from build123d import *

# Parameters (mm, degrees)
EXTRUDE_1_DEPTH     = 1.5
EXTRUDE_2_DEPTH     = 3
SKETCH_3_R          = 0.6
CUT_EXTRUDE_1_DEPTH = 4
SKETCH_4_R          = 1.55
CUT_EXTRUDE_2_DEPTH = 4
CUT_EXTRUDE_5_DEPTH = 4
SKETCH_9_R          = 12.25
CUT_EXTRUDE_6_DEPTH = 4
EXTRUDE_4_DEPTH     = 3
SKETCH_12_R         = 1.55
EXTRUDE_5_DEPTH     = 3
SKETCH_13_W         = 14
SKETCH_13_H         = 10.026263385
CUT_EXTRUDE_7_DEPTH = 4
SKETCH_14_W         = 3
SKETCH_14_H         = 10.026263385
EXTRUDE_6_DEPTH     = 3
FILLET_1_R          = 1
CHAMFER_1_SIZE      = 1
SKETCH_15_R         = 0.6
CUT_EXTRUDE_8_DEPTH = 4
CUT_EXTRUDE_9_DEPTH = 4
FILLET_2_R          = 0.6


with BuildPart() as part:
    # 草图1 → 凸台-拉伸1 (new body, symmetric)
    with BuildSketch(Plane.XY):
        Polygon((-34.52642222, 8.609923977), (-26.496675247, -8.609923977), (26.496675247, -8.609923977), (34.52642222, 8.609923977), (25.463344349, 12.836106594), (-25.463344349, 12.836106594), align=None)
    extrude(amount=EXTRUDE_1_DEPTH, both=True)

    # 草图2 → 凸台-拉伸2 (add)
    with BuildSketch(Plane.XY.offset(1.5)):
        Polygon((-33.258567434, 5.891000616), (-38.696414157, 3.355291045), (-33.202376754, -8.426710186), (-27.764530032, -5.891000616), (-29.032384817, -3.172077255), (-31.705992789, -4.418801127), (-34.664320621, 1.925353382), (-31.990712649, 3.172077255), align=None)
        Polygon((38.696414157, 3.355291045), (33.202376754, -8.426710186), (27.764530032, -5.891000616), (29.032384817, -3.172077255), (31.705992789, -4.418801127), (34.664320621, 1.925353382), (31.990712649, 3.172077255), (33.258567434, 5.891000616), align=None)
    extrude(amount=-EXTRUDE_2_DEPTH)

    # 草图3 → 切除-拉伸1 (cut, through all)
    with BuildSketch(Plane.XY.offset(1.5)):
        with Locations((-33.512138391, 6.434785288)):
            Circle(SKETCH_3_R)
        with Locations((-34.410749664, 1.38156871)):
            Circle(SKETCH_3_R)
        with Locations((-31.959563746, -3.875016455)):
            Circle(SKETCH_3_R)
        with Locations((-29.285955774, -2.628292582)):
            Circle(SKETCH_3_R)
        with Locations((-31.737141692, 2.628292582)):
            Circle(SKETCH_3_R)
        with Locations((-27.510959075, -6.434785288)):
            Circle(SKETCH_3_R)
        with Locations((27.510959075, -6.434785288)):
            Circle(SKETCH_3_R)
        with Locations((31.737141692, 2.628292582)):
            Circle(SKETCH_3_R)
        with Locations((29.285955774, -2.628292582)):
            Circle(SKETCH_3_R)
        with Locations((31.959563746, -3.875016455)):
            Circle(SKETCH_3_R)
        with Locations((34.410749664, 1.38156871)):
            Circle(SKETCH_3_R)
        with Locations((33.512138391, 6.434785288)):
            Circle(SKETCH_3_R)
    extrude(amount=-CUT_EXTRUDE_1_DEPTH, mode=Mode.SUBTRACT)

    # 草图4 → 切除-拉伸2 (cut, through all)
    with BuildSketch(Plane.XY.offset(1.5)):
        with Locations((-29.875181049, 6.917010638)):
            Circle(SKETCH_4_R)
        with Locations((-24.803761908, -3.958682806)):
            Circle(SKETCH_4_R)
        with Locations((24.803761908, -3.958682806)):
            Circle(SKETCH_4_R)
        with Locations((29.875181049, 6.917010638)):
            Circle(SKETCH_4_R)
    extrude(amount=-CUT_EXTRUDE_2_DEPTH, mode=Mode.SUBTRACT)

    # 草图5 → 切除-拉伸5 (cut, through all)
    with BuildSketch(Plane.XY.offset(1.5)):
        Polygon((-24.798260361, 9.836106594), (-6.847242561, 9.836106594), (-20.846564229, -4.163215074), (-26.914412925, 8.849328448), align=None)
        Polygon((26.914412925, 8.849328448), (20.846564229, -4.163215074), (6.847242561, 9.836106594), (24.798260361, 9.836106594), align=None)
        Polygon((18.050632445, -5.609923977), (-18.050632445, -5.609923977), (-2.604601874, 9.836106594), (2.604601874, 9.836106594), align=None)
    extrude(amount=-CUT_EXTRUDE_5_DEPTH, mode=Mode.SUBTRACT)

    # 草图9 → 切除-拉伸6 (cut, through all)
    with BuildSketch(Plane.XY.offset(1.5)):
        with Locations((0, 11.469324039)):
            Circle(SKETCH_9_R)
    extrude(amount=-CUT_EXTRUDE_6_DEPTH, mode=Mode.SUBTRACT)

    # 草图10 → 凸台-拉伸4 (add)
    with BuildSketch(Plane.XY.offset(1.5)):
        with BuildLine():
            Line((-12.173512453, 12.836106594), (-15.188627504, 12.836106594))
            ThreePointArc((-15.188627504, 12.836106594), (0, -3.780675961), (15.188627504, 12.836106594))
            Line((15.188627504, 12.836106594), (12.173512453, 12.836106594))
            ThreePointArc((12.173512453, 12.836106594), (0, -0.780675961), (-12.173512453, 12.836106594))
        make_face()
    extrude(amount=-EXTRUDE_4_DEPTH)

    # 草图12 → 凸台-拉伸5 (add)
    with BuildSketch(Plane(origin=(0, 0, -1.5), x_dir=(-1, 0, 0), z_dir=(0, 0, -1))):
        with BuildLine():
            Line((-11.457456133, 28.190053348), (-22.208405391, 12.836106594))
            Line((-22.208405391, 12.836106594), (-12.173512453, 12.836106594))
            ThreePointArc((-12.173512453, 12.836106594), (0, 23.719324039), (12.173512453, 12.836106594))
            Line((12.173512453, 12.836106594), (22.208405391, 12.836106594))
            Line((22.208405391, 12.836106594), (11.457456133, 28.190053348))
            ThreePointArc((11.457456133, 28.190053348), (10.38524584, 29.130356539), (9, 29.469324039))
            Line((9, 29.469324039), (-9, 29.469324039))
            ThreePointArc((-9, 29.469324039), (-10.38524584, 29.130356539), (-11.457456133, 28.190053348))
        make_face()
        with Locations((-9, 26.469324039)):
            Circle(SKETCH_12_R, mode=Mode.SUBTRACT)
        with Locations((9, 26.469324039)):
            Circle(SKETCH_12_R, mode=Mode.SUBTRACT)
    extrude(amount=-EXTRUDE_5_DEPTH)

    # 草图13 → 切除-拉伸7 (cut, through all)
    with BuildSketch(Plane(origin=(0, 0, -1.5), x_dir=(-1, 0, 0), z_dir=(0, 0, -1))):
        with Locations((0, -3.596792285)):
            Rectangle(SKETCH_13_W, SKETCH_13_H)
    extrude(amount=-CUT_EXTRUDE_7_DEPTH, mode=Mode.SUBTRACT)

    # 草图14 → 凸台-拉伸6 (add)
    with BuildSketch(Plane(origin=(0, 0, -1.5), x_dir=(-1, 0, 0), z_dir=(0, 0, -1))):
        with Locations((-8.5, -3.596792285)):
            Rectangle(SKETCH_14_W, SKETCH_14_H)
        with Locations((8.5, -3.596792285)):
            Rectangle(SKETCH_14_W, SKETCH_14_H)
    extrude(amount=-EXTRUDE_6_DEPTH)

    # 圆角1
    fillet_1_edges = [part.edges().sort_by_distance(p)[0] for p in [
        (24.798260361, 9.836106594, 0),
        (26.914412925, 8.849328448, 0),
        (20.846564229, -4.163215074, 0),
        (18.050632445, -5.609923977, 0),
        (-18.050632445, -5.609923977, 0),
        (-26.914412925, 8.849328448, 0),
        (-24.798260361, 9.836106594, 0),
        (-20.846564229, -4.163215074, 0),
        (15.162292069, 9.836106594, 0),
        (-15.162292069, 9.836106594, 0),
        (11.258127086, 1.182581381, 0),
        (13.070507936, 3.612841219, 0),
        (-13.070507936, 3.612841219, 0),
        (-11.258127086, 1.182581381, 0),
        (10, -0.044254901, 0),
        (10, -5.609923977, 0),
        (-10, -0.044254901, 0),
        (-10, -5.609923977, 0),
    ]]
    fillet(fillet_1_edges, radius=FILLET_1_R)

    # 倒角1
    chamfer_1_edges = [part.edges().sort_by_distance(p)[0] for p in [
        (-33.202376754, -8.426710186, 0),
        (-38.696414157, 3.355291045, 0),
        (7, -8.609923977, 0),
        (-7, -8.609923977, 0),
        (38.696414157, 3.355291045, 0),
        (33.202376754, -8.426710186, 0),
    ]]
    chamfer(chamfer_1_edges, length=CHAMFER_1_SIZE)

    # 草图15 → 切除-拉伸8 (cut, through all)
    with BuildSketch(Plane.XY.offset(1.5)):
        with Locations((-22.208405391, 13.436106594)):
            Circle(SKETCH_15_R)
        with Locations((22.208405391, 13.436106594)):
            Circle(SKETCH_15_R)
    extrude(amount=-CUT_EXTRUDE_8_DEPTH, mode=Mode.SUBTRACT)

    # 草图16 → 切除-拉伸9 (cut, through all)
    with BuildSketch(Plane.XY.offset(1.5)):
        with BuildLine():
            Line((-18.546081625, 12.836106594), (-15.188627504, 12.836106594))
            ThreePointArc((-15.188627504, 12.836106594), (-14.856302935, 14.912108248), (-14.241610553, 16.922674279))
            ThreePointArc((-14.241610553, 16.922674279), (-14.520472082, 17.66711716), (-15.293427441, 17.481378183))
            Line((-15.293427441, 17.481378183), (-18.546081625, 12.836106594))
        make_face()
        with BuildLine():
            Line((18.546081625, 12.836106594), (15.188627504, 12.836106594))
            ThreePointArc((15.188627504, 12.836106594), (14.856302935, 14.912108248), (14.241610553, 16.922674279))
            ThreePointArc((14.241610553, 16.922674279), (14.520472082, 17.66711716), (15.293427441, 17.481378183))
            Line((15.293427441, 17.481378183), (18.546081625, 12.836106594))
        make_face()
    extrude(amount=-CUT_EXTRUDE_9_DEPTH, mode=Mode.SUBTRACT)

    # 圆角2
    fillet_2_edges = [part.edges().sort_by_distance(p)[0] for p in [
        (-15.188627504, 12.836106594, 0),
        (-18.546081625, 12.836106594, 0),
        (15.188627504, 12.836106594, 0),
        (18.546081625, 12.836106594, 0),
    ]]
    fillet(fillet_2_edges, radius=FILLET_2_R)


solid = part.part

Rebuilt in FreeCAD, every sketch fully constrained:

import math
import FreeCAD as App
import Part
import Sketcher
from FreeCAD import Vector
Q = App.Units.Quantity


def edges_at(feature, points):
    """Names of the edges that pass closest to the given points."""
    edges = feature.Shape.Edges
    near = lambda p: min(range(len(edges)), key=lambda i: edges[i].distToShape(Part.Vertex(*p))[0])
    return sorted({f"Edge{near(p) + 1}" for p in points})

doc = App.newDocument("Part")
body = doc.addObject("PartDesign::Body", "Body")

# Sketch on XY plane
sketch1 = body.newObject("Sketcher::SketchObject", "Sketch")
sketch1.AttachmentSupport = (doc.getObject("XY_Plane"), [""])
sketch1.MapMode = "FlatFace"
sketch1.addGeometry([
    Part.LineSegment(Vector(-34.526422, 8.609924, 0), Vector(-26.496675, -8.609924, 0)),  # 0
    Part.LineSegment(Vector(-26.496675, -8.609924, 0), Vector(26.496675, -8.609924, 0)),  # 1
    Part.LineSegment(Vector(26.496675, -8.609924, 0), Vector(34.526422, 8.609924, 0)),  # 2
    Part.LineSegment(Vector(34.526422, 8.609924, 0), Vector(25.463344, 12.836107, 0)),  # 3
    Part.LineSegment(Vector(25.463344, 12.836107, 0), Vector(-25.463344, 12.836107, 0)),  # 4
    Part.LineSegment(Vector(-25.463344, 12.836107, 0), Vector(-34.526422, 8.609924, 0)),  # 5
], False)
sketch1.addConstraint([
    Sketcher.Constraint("Coincident", 0, 2, 1, 1),
    Sketcher.Constraint("Coincident", 1, 2, 2, 1),
    Sketcher.Constraint("Coincident", 2, 2, 3, 1),
    Sketcher.Constraint("Coincident", 3, 2, 4, 1),
    Sketcher.Constraint("Coincident", 4, 2, 5, 1),
    Sketcher.Constraint("Coincident", 5, 2, 0, 1),
    Sketcher.Constraint("Horizontal", 1),
    Sketcher.Constraint("Horizontal", 4),
    Sketcher.Constraint("Symmetric", 2, 2, 5, 2, -2),
    Sketcher.Constraint("Perpendicular", 2, 3),
    Sketcher.Constraint("Perpendicular", 0, 5),
    Sketcher.Constraint("Equal", 0, 2),
    Sketcher.Constraint("Angle", 0, Q("-65 deg")),
    Sketcher.Constraint("Distance", 0, Q("19 mm")),
    Sketcher.Constraint("Distance", 3, Q("10 mm")),
    Sketcher.Constraint("DistanceX", 1, 1, 1, 2, Q("52.99335 mm")),
    Sketcher.Constraint("DistanceY", 0, 2, -1, 1, Q("8.609924 mm")),
])
pad1 = body.newObject("PartDesign::Pad", "Pad")
pad1.Profile = sketch1
pad1.Length = 3
pad1.Midplane = True

# Sketch on XY plane
sketch2 = body.newObject("Sketcher::SketchObject", "Sketch001")
sketch2.AttachmentSupport = (doc.getObject("XY_Plane"), [""])
sketch2.MapMode = "FlatFace"
sketch2.AttachmentOffset = App.Placement(Vector(0, 0, 1.5), App.Rotation())
sketch2.addGeometry([
    Part.LineSegment(Vector(-33.258567, 5.891001, 0), Vector(-38.696414, 3.355291, 0)),  # 0
    Part.LineSegment(Vector(-38.696414, 3.355291, 0), Vector(-33.202377, -8.42671, 0)),  # 1
    Part.LineSegment(Vector(-33.202377, -8.42671, 0), Vector(-27.76453, -5.891001, 0)),  # 2
    Part.LineSegment(Vector(-27.76453, -5.891001, 0), Vector(-29.032385, -3.172077, 0)),  # 3
    Part.LineSegment(Vector(-29.032385, -3.172077, 0), Vector(-31.705993, -4.418801, 0)),  # 4
    Part.LineSegment(Vector(-31.705993, -4.418801, 0), Vector(-34.664321, 1.925353, 0)),  # 5
    Part.LineSegment(Vector(-34.664321, 1.925353, 0), Vector(-31.990713, 3.172077, 0)),  # 6
    Part.LineSegment(Vector(-31.990713, 3.172077, 0), Vector(-33.258567, 5.891001, 0)),  # 7
    Part.LineSegment(Vector(33.202377, -8.42671, 0), Vector(38.696414, 3.355291, 0)),  # 8
    Part.LineSegment(Vector(38.696414, 3.355291, 0), Vector(33.258567, 5.891001, 0)),  # 9
    Part.LineSegment(Vector(33.258567, 5.891001, 0), Vector(31.990713, 3.172077, 0)),  # 10
    Part.LineSegment(Vector(31.990713, 3.172077, 0), Vector(34.664321, 1.925353, 0)),  # 11
    Part.LineSegment(Vector(34.664321, 1.925353, 0), Vector(31.705993, -4.418801, 0)),  # 12
    Part.LineSegment(Vector(31.705993, -4.418801, 0), Vector(29.032385, -3.172077, 0)),  # 13
    Part.LineSegment(Vector(29.032385, -3.172077, 0), Vector(27.76453, -5.891001, 0)),  # 14
    Part.LineSegment(Vector(27.76453, -5.891001, 0), Vector(33.202377, -8.42671, 0)),  # 15
], False)
sketch2.addConstraint([
    Sketcher.Constraint("Coincident", 0, 2, 1, 1),
    Sketcher.Constraint("Coincident", 1, 2, 2, 1),
    Sketcher.Constraint("Coincident", 2, 2, 3, 1),
    Sketcher.Constraint("Coincident", 3, 2, 4, 1),
    Sketcher.Constraint("Coincident", 4, 2, 5, 1),
    Sketcher.Constraint("Coincident", 5, 2, 6, 1),
    Sketcher.Constraint("Coincident", 6, 2, 7, 1),
    Sketcher.Constraint("Coincident", 7, 2, 0, 1),
    Sketcher.Constraint("Coincident", 8, 2, 9, 1),
    Sketcher.Constraint("Coincident", 9, 2, 10, 1),
    Sketcher.Constraint("Coincident", 10, 2, 11, 1),
    Sketcher.Constraint("Coincident", 11, 2, 12, 1),
    Sketcher.Constraint("Coincident", 12, 2, 13, 1),
    Sketcher.Constraint("Coincident", 13, 2, 14, 1),
    Sketcher.Constraint("Coincident", 14, 2, 15, 1),
    Sketcher.Constraint("Coincident", 15, 2, 8, 1),
    Sketcher.Constraint("Symmetric", 0, 2, 8, 2, -2),
    Sketcher.Constraint("Symmetric", 7, 2, 9, 2, -2),
    Sketcher.Constraint("Symmetric", 6, 2, 10, 2, -2),
    Sketcher.Constraint("Symmetric", 5, 2, 11, 2, -2),
    Sketcher.Constraint("Symmetric", 4, 2, 12, 2, -2),
    Sketcher.Constraint("Symmetric", 3, 2, 13, 2, -2),
    Sketcher.Constraint("Symmetric", 2, 2, 14, 2, -2),
    Sketcher.Constraint("Symmetric", 1, 2, 15, 2, -2),
    Sketcher.Constraint("Perpendicular", 0, 1),
    Sketcher.Constraint("Perpendicular", 1, 2),
    Sketcher.Constraint("Perpendicular", 2, 3),
    Sketcher.Constraint("Perpendicular", 3, 4),
    Sketcher.Constraint("Perpendicular", 4, 5),
    Sketcher.Constraint("Perpendicular", 5, 6),
    Sketcher.Constraint("Perpendicular", 6, 7),
    Sketcher.Constraint("Equal", 0, 2),
    Sketcher.Constraint("Equal", 3, 7),
    Sketcher.Constraint("Angle", 0, Q("-155 deg")),
    Sketcher.Constraint("Distance", 0, Q("6 mm")),
    Sketcher.Constraint("Distance", 1, Q("13 mm")),
    Sketcher.Constraint("Distance", 3, Q("3 mm")),
    Sketcher.Constraint("Distance", 4, Q("2.95 mm")),
    Sketcher.Constraint("DistanceY", 2, 2, -1, 1, Q("5.891001 mm")),
    Sketcher.Constraint("DistanceX", 3, 2, 8, 2, Q("67.728799 mm")),
])
pad2 = body.newObject("PartDesign::Pad", "Pad001")
pad2.Profile = sketch2
pad2.Length = 3
pad2.Reversed = True

# Sketch on XY plane
sketch3 = body.newObject("Sketcher::SketchObject", "Sketch002")
sketch3.AttachmentSupport = (doc.getObject("XY_Plane"), [""])
sketch3.MapMode = "FlatFace"
sketch3.AttachmentOffset = App.Placement(Vector(0, 0, 1.5), App.Rotation())
sketch3.addGeometry([
    Part.Circle(Vector(-33.512138, 6.434785, 0), Vector(0, 0, 1), 0.6),  # 0
    Part.Circle(Vector(-34.41075, 1.381569, 0), Vector(0, 0, 1), 0.6),  # 1
    Part.Circle(Vector(-31.959564, -3.875016, 0), Vector(0, 0, 1), 0.6),  # 2
    Part.Circle(Vector(-29.285956, -2.628293, 0), Vector(0, 0, 1), 0.6),  # 3
    Part.Circle(Vector(-31.737142, 2.628293, 0), Vector(0, 0, 1), 0.6),  # 4
    Part.Circle(Vector(-27.510959, -6.434785, 0), Vector(0, 0, 1), 0.6),  # 5
    Part.Circle(Vector(27.510959, -6.434785, 0), Vector(0, 0, 1), 0.6),  # 6
    Part.Circle(Vector(31.737142, 2.628293, 0), Vector(0, 0, 1), 0.6),  # 7
    Part.Circle(Vector(29.285956, -2.628293, 0), Vector(0, 0, 1), 0.6),  # 8
    Part.Circle(Vector(31.959564, -3.875016, 0), Vector(0, 0, 1), 0.6),  # 9
    Part.Circle(Vector(34.41075, 1.381569, 0), Vector(0, 0, 1), 0.6),  # 10
    Part.Circle(Vector(33.512138, 6.434785, 0), Vector(0, 0, 1), 0.6),  # 11
], False)
sketch3.addConstraint([
    Sketcher.Constraint("Equal", 0, 1),
    Sketcher.Constraint("Equal", 1, 2),
    Sketcher.Constraint("Equal", 2, 3),
    Sketcher.Constraint("Equal", 3, 4),
    Sketcher.Constraint("Equal", 4, 5),
    Sketcher.Constraint("Equal", 5, 6),
    Sketcher.Constraint("Equal", 6, 7),
    Sketcher.Constraint("Equal", 7, 8),
    Sketcher.Constraint("Equal", 8, 9),
    Sketcher.Constraint("Equal", 9, 10),
    Sketcher.Constraint("Equal", 10, 11),
    Sketcher.Constraint("Symmetric", 5, 3, 6, 3, -2),
    Sketcher.Constraint("Symmetric", 4, 3, 7, 3, -2),
    Sketcher.Constraint("Symmetric", 3, 3, 8, 3, -2),
    Sketcher.Constraint("Symmetric", 2, 3, 9, 3, -2),
    Sketcher.Constraint("Symmetric", 1, 3, 10, 3, -2),
    Sketcher.Constraint("Symmetric", 0, 3, 11, 3, -2),
    Sketcher.Constraint("Diameter", 0, Q("1.2 mm")),
    Sketcher.Constraint("DistanceY", 2, 3, 0, 3, Q("10.309802 mm")),
    Sketcher.Constraint("DistanceX", 4, 3, 6, 3, Q("59.248101 mm")),
    Sketcher.Constraint("DistanceX", 0, 3, -1, 1, Q("33.512138 mm")),
    Sketcher.Constraint("DistanceX", 1, 3, -1, 1, Q("34.41075 mm")),
    Sketcher.Constraint("DistanceY", -1, 1, 1, 3, Q("1.381569 mm")),
    Sketcher.Constraint("DistanceX", 4, 3, -1, 1, Q("31.737142 mm")),
    Sketcher.Constraint("DistanceY", 3, 3, 1, 3, Q("4.009861 mm")),
    Sketcher.Constraint("DistanceY", 2, 3, 4, 3, Q("6.503309 mm")),
    Sketcher.Constraint("DistanceY", 5, 3, 2, 3, Q("2.559769 mm")),
    Sketcher.Constraint("DistanceX", 3, 3, 8, 3, Q("58.571912 mm")),
    Sketcher.Constraint("DistanceX", 3, 3, 9, 3, Q("61.24552 mm")),
    Sketcher.Constraint("DistanceY", -1, 1, 0, 3, Q("6.434785 mm")),
])
pocket1 = body.newObject("PartDesign::Pocket", "Pocket")
pocket1.Profile = sketch3
pocket1.Type = "ThroughAll"

# Sketch on XY plane
sketch4 = body.newObject("Sketcher::SketchObject", "Sketch003")
sketch4.AttachmentSupport = (doc.getObject("XY_Plane"), [""])
sketch4.MapMode = "FlatFace"
sketch4.AttachmentOffset = App.Placement(Vector(0, 0, 1.5), App.Rotation())
sketch4.addGeometry([
    Part.Circle(Vector(-29.875181, 6.917011, 0), Vector(0, 0, 1), 1.55),
    Part.Circle(Vector(-24.803762, -3.958683, 0), Vector(0, 0, 1), 1.55),
    Part.Circle(Vector(24.803762, -3.958683, 0), Vector(0, 0, 1), 1.55),
    Part.Circle(Vector(29.875181, 6.917011, 0), Vector(0, 0, 1), 1.55),
], False)
sketch4.addConstraint([
    Sketcher.Constraint("Equal", 0, 1),
    Sketcher.Constraint("Equal", 1, 2),
    Sketcher.Constraint("Equal", 2, 3),
    Sketcher.Constraint("Symmetric", 1, 3, 2, 3, -2),
    Sketcher.Constraint("Symmetric", 0, 3, 3, 3, -2),
    Sketcher.Constraint("Diameter", 0, Q("3.1 mm")),
    Sketcher.Constraint("DistanceX", 0, 3, -1, 1, Q("29.875181 mm")),
    Sketcher.Constraint("DistanceY", -1, 1, 0, 3, Q("6.917011 mm")),
    Sketcher.Constraint("DistanceX", 1, 3, -1, 1, Q("24.803762 mm")),
    Sketcher.Constraint("DistanceY", 1, 3, -1, 1, Q("3.958683 mm")),
])
pocket2 = body.newObject("PartDesign::Pocket", "Pocket001")
pocket2.Profile = sketch4
pocket2.Type = "ThroughAll"

# Sketch on XY plane
sketch5 = body.newObject("Sketcher::SketchObject", "Sketch004")
sketch5.AttachmentSupport = (doc.getObject("XY_Plane"), [""])
sketch5.MapMode = "FlatFace"
sketch5.AttachmentOffset = App.Placement(Vector(0, 0, 1.5), App.Rotation())
sketch5.addGeometry([
    Part.LineSegment(Vector(-6.847243, 9.836107, 0), Vector(-24.79826, 9.836107, 0)),  # 0
    Part.LineSegment(Vector(-24.79826, 9.836107, 0), Vector(-26.914413, 8.849328, 0)),  # 1
    Part.LineSegment(Vector(-26.914413, 8.849328, 0), Vector(-20.846564, -4.163215, 0)),  # 2
    Part.LineSegment(Vector(-20.846564, -4.163215, 0), Vector(-6.847243, 9.836107, 0)),  # 3
    Part.LineSegment(Vector(20.846564, -4.163215, 0), Vector(26.914413, 8.849328, 0)),  # 4
    Part.LineSegment(Vector(26.914413, 8.849328, 0), Vector(24.79826, 9.836107, 0)),  # 5
    Part.LineSegment(Vector(24.79826, 9.836107, 0), Vector(6.847243, 9.836107, 0)),  # 6
    Part.LineSegment(Vector(6.847243, 9.836107, 0), Vector(20.846564, -4.163215, 0)),  # 7
    Part.LineSegment(Vector(-18.050632, -5.609924, 0), Vector(18.050632, -5.609924, 0)),  # 8
    Part.LineSegment(Vector(18.050632, -5.609924, 0), Vector(2.604602, 9.836107, 0)),  # 9
    Part.LineSegment(Vector(2.604602, 9.836107, 0), Vector(-2.604602, 9.836107, 0)),  # 10
    Part.LineSegment(Vector(-2.604602, 9.836107, 0), Vector(-18.050632, -5.609924, 0)),  # 11
], False)
sketch5.addConstraint([
    Sketcher.Constraint("Coincident", 0, 2, 1, 1),
    Sketcher.Constraint("Coincident", 1, 2, 2, 1),
    Sketcher.Constraint("Coincident", 2, 2, 3, 1),
    Sketcher.Constraint("Coincident", 3, 2, 0, 1),
    Sketcher.Constraint("Coincident", 4, 2, 5, 1),
    Sketcher.Constraint("Coincident", 5, 2, 6, 1),
    Sketcher.Constraint("Coincident", 6, 2, 7, 1),
    Sketcher.Constraint("Coincident", 7, 2, 4, 1),
    Sketcher.Constraint("Coincident", 8, 2, 9, 1),
    Sketcher.Constraint("Coincident", 9, 2, 10, 1),
    Sketcher.Constraint("Coincident", 10, 2, 11, 1),
    Sketcher.Constraint("Coincident", 11, 2, 8, 1),
    Sketcher.Constraint("Horizontal", 0),
    Sketcher.Constraint("Horizontal", 6),
    Sketcher.Constraint("Horizontal", 8),
    Sketcher.Constraint("Horizontal", 10),
    Sketcher.Constraint("Symmetric", 1, 2, 4, 2, -2),
    Sketcher.Constraint("Symmetric", 0, 2, 5, 2, -2),
    Sketcher.Constraint("Symmetric", 2, 2, 7, 2, -2),
    Sketcher.Constraint("Perpendicular", 1, 2),
    Sketcher.Constraint("Perpendicular", 3, 7),
    Sketcher.Constraint("Parallel", 7, 9),
    Sketcher.Constraint("Perpendicular", 9, 11),
    Sketcher.Constraint("Horizontal", 6, 2, 9, 2),
    Sketcher.Constraint("Equal", 0, 6),
    Sketcher.Constraint("Angle", 1, Q("-155 deg")),
    Sketcher.Constraint("DistanceX", -1, 1, 9, 2, Q("2.604602 mm")),
    Sketcher.Constraint("DistanceX", 10, 2, -1, 1, Q("2.604602 mm")),
    Sketcher.Constraint("Distance", 3, Q("19.798031 mm")),
    Sketcher.Constraint("DistanceX", 0, 2, 0, 1, Q("17.951018 mm")),
    Sketcher.Constraint("DistanceX", 8, 1, 8, 2, Q("36.101265 mm")),
    Sketcher.Constraint("DistanceX", 0, 2, -1, 1, Q("24.79826 mm")),
    Sketcher.Constraint("DistanceY", -1, 1, 1, 2, Q("8.849328 mm")),
])
pocket3 = body.newObject("PartDesign::Pocket", "Pocket002")
pocket3.Profile = sketch5
pocket3.Type = "ThroughAll"

# Sketch on XY plane
sketch6 = body.newObject("Sketcher::SketchObject", "Sketch005")
sketch6.AttachmentSupport = (doc.getObject("XY_Plane"), [""])
sketch6.MapMode = "FlatFace"
sketch6.AttachmentOffset = App.Placement(Vector(0, 0, 1.5), App.Rotation())
sketch6.addGeometry(Part.Circle(Vector(0, 11.469324, 0), Vector(0, 0, 1), 12.25), False)
sketch6.addConstraint([
    Sketcher.Constraint("PointOnObject", 0, 3, -2),
    Sketcher.Constraint("Diameter", 0, Q("24.5 mm")),
    Sketcher.Constraint("DistanceY", -1, 1, 0, 3, Q("11.469324 mm")),
])
pocket4 = body.newObject("PartDesign::Pocket", "Pocket003")
pocket4.Profile = sketch6
pocket4.Type = "ThroughAll"

# Sketch on XY plane
sketch7 = body.newObject("Sketcher::SketchObject", "Sketch006")
sketch7.AttachmentSupport = (doc.getObject("XY_Plane"), [""])
sketch7.MapMode = "FlatFace"
sketch7.AttachmentOffset = App.Placement(Vector(0, 0, 1.5), App.Rotation())
sketch7.addGeometry([
    Part.LineSegment(Vector(-12.173512, 12.836107, 0), Vector(-15.188628, 12.836107, 0)),
    Part.ArcOfCircle(Part.Circle(Vector(0, 11.469324, 0), Vector(0, 0, 1), 15.25), math.radians(174.857961), math.radians(365.142039)),
    Part.LineSegment(Vector(15.188628, 12.836107, 0), Vector(12.173512, 12.836107, 0)),
    Part.ArcOfCircle(Part.Circle(Vector(0, 11.469324, 0), Vector(0, 0, 1), 12.25), math.radians(173.593937), math.radians(366.406063)),
], False)
sketch7.addConstraint([
    Sketcher.Constraint("Coincident", 0, 2, 1, 1),
    Sketcher.Constraint("Coincident", 1, 2, 2, 1),
    Sketcher.Constraint("Coincident", 2, 2, 3, 2),
    Sketcher.Constraint("Coincident", 3, 1, 0, 1),
    Sketcher.Constraint("Horizontal", 0),
    Sketcher.Constraint("Horizontal", 2),
    Sketcher.Constraint("Coincident", 3, 3, 1, 3),
    Sketcher.Constraint("Symmetric", 0, 2, 1, 2, -2),
    Sketcher.Constraint("Radius", 1, Q("15.25 mm")),
    Sketcher.Constraint("Radius", 3, Q("12.25 mm")),
    Sketcher.Constraint("DistanceX", 0, 2, 0, 1, Q("3.015115 mm")),
    Sketcher.Constraint("DistanceY", -1, 1, 1, 3, Q("11.469324 mm")),
])
pad3 = body.newObject("PartDesign::Pad", "Pad002")
pad3.Profile = sketch7
pad3.Length = 3
pad3.Reversed = True

# Sketch on XY plane
sketch8 = body.newObject("Sketcher::SketchObject", "Sketch007")
sketch8.AttachmentSupport = (doc.getObject("XY_Plane"), [""])
sketch8.MapMode = "FlatFace"
sketch8.AttachmentOffset = App.Placement(Vector(0, 0, -1.5), App.Rotation())
sketch8.addGeometry([
    Part.LineSegment(Vector(11.457456, 28.190053, 0), Vector(22.208405, 12.836107, 0)),  # 0
    Part.LineSegment(Vector(22.208405, 12.836107, 0), Vector(12.173512, 12.836107, 0)),  # 1
    Part.ArcOfCircle(Part.Circle(Vector(0, 11.469324, 0), Vector(0, 0, 1), 12.25), math.radians(6.406063), math.radians(173.593937)),  # 2
    Part.LineSegment(Vector(-12.173512, 12.836107, 0), Vector(-22.208405, 12.836107, 0)),  # 3
    Part.LineSegment(Vector(-22.208405, 12.836107, 0), Vector(-11.457456, 28.190053, 0)),  # 4
    Part.ArcOfCircle(Part.Circle(Vector(-9, 26.469324, 0), Vector(0, 0, 1), 3), math.radians(90), math.radians(145)),  # 5
    Part.LineSegment(Vector(-9, 29.469324, 0), Vector(9, 29.469324, 0)),  # 6
    Part.ArcOfCircle(Part.Circle(Vector(9, 26.469324, 0), Vector(0, 0, 1), 3), math.radians(35), math.radians(90)),  # 7
    Part.Circle(Vector(9, 26.469324, 0), Vector(0, 0, 1), 1.55),  # 8
    Part.Circle(Vector(-9, 26.469324, 0), Vector(0, 0, 1), 1.55),  # 9
], False)
sketch8.addConstraint([
    Sketcher.Constraint("Coincident", 0, 2, 1, 1),
    Sketcher.Constraint("Coincident", 1, 2, 2, 1),
    Sketcher.Constraint("Coincident", 2, 2, 3, 1),
    Sketcher.Constraint("Coincident", 3, 2, 4, 1),
    Sketcher.Constraint("Tangent", 4, 2, 5, 2),
    Sketcher.Constraint("Tangent", 5, 1, 6, 1),
    Sketcher.Constraint("Tangent", 6, 2, 7, 2),
    Sketcher.Constraint("Tangent", 7, 1, 0, 1),
    Sketcher.Constraint("Horizontal", 1),
    Sketcher.Constraint("Horizontal", 3),
    Sketcher.Constraint("Horizontal", 6),
    Sketcher.Constraint("Coincident", 8, 3, 7, 3),
    Sketcher.Constraint("Coincident", 9, 3, 5, 3),
    Sketcher.Constraint("Equal", 5, 7),
    Sketcher.Constraint("Equal", 8, 9),
    Sketcher.Constraint("Symmetric", 1, 2, 2, 2, -2),
    Sketcher.Constraint("Symmetric", 4, 2, 7, 1, -2),
    Sketcher.Constraint("Radius", 5, Q("3 mm")),
    Sketcher.Constraint("Diameter", 8, Q("3.1 mm")),
    Sketcher.Constraint("DistanceX", 6, 1, 6, 2, Q("18 mm")),
    Sketcher.Constraint("Angle", 0, Q("-55 deg")),
    Sketcher.Constraint("Radius", 2, Q("12.25 mm")),
    Sketcher.Constraint("DistanceY", 2, 3, 5, 3, Q("15 mm")),
    Sketcher.Constraint("Distance", 0, Q("18.743708 mm")),
    Sketcher.Constraint("DistanceY", -1, 1, 2, 3, Q("11.469324 mm")),
])
pad4 = body.newObject("PartDesign::Pad", "Pad003")
pad4.Profile = sketch8
pad4.Length = 3

# Sketch on XY plane
sketch9 = body.newObject("Sketcher::SketchObject", "Sketch008")
sketch9.AttachmentSupport = (doc.getObject("XY_Plane"), [""])
sketch9.MapMode = "FlatFace"
sketch9.AttachmentOffset = App.Placement(Vector(0, 0, -1.5), App.Rotation())
sketch9.addGeometry([
    Part.LineSegment(Vector(7, 1.416339, 0), Vector(7, -8.609924, 0)),
    Part.LineSegment(Vector(7, -8.609924, 0), Vector(-7, -8.609924, 0)),
    Part.LineSegment(Vector(-7, -8.609924, 0), Vector(-7, 1.416339, 0)),
    Part.LineSegment(Vector(-7, 1.416339, 0), Vector(7, 1.416339, 0)),
], False)
sketch9.addConstraint([
    Sketcher.Constraint("Coincident", 0, 2, 1, 1),
    Sketcher.Constraint("Coincident", 1, 2, 2, 1),
    Sketcher.Constraint("Coincident", 2, 2, 3, 1),
    Sketcher.Constraint("Coincident", 3, 2, 0, 1),
    Sketcher.Constraint("Vertical", 0),
    Sketcher.Constraint("Horizontal", 1),
    Sketcher.Constraint("Vertical", 2),
    Sketcher.Constraint("Horizontal", 3),
    Sketcher.Constraint("DistanceX", 1, 2, 1, 1, Q("14 mm")),
    Sketcher.Constraint("DistanceX", -1, 1, 0, 2, Q("7 mm")),
    Sketcher.Constraint("DistanceY", 0, 2, 0, 1, Q("10.026263 mm")),
    Sketcher.Constraint("DistanceY", -1, 1, 2, 2, Q("1.416339 mm")),
])
pocket5 = body.newObject("PartDesign::Pocket", "Pocket004")
pocket5.Profile = sketch9
pocket5.Type = "ThroughAll"
pocket5.Reversed = True

# Sketch on XY plane
sketch10 = body.newObject("Sketcher::SketchObject", "Sketch009")
sketch10.AttachmentSupport = (doc.getObject("XY_Plane"), [""])
sketch10.MapMode = "FlatFace"
sketch10.AttachmentOffset = App.Placement(Vector(0, 0, -1.5), App.Rotation())
sketch10.addGeometry([
    Part.LineSegment(Vector(10, 1.416339, 0), Vector(10, -8.609924, 0)),  # 0
    Part.LineSegment(Vector(10, -8.609924, 0), Vector(7, -8.609924, 0)),  # 1
    Part.LineSegment(Vector(7, -8.609924, 0), Vector(7, 1.416339, 0)),  # 2
    Part.LineSegment(Vector(7, 1.416339, 0), Vector(10, 1.416339, 0)),  # 3
    Part.LineSegment(Vector(-7, 1.416339, 0), Vector(-7, -8.609924, 0)),  # 4
    Part.LineSegment(Vector(-7, -8.609924, 0), Vector(-10, -8.609924, 0)),  # 5
    Part.LineSegment(Vector(-10, -8.609924, 0), Vector(-10, 1.416339, 0)),  # 6
    Part.LineSegment(Vector(-10, 1.416339, 0), Vector(-7, 1.416339, 0)),  # 7
], False)
sketch10.addConstraint([
    Sketcher.Constraint("Coincident", 0, 2, 1, 1),
    Sketcher.Constraint("Coincident", 1, 2, 2, 1),
    Sketcher.Constraint("Coincident", 2, 2, 3, 1),
    Sketcher.Constraint("Coincident", 3, 2, 0, 1),
    Sketcher.Constraint("Coincident", 4, 2, 5, 1),
    Sketcher.Constraint("Coincident", 5, 2, 6, 1),
    Sketcher.Constraint("Coincident", 6, 2, 7, 1),
    Sketcher.Constraint("Coincident", 7, 2, 4, 1),
    Sketcher.Constraint("Vertical", 0),
    Sketcher.Constraint("Horizontal", 1),
    Sketcher.Constraint("Vertical", 2),
    Sketcher.Constraint("Horizontal", 3),
    Sketcher.Constraint("Vertical", 4),
    Sketcher.Constraint("Horizontal", 5),
    Sketcher.Constraint("Vertical", 6),
    Sketcher.Constraint("Horizontal", 7),
    Sketcher.Constraint("Symmetric", 1, 2, 4, 2, -2),
    Sketcher.Constraint("Symmetric", 3, 2, 6, 2, -2),
    Sketcher.Constraint("DistanceX", 1, 2, 1, 1, Q("3 mm")),
    Sketcher.Constraint("DistanceX", -1, 1, 0, 2, Q("10 mm")),
    Sketcher.Constraint("DistanceY", 0, 2, 0, 1, Q("10.026263 mm")),
    Sketcher.Constraint("DistanceY", -1, 1, 2, 2, Q("1.416339 mm")),
])
pad5 = body.newObject("PartDesign::Pad", "Pad004")
pad5.Profile = sketch10
pad5.Length = 3
doc.recompute()

fillet = body.newObject("PartDesign::Fillet", "Fillet")
fillet.Base = (pad5, edges_at(pad5, [
    (24.798, 9.836, 0),
    (26.914, 8.849, 0),
    (20.847, -4.163, 0),
    (18.051, -5.61, 0),
    (-18.051, -5.61, 0),
    (-26.914, 8.849, 0),
    (-24.798, 9.836, 0),
    (-20.847, -4.163, 0),
    (15.162, 9.836, 0),
    (-15.162, 9.836, 0),
    (11.258, 1.183, 0),
    (13.071, 3.613, 0),
    (-13.071, 3.613, 0),
    (-11.258, 1.183, 0),
    (10, -0.044, 0),
    (10, -5.61, 0),
    (-10, -0.044, 0),
    (-10, -5.61, 0),
]))
fillet.Radius = 1
doc.recompute()

chamfer = body.newObject("PartDesign::Chamfer", "Chamfer")
chamfer.Base = (fillet, edges_at(fillet, [
    (-33.202, -8.427, 0),
    (-38.696, 3.355, 0),
    (7, -8.61, 0),
    (-7, -8.61, 0),
    (38.696, 3.355, 0),
    (33.202, -8.427, 0),
]))
chamfer.Size = 1

# Sketch on XY plane
sketch11 = body.newObject("Sketcher::SketchObject", "Sketch010")
sketch11.AttachmentSupport = (doc.getObject("XY_Plane"), [""])
sketch11.MapMode = "FlatFace"
sketch11.AttachmentOffset = App.Placement(Vector(0, 0, 1.5), App.Rotation())
sketch11.addGeometry([
    Part.Circle(Vector(-22.208405, 13.436107, 0), Vector(0, 0, 1), 0.6),
    Part.Circle(Vector(22.208405, 13.436107, 0), Vector(0, 0, 1), 0.6),
], False)
sketch11.addConstraint([
    Sketcher.Constraint("Equal", 0, 1),
    Sketcher.Constraint("Symmetric", 0, 3, 1, 3, -2),
    Sketcher.Constraint("Diameter", 0, Q("1.2 mm")),
    Sketcher.Constraint("DistanceX", 0, 3, 1, 3, Q("44.416811 mm")),
    Sketcher.Constraint("DistanceY", -1, 1, 0, 3, Q("13.436107 mm")),
])
pocket6 = body.newObject("PartDesign::Pocket", "Pocket005")
pocket6.Profile = sketch11
pocket6.Type = "ThroughAll"

# Sketch on XY plane
sketch12 = body.newObject("Sketcher::SketchObject", "Sketch011")
sketch12.AttachmentSupport = (doc.getObject("XY_Plane"), [""])
sketch12.MapMode = "FlatFace"
sketch12.AttachmentOffset = App.Placement(Vector(0, 0, 1.5), App.Rotation())
sketch12.addGeometry([
    Part.LineSegment(Vector(-18.546082, 12.836107, 0), Vector(-15.188628, 12.836107, 0)),  # 0
    Part.ArcOfCircle(Part.Circle(Vector(0, 11.469324, 0), Vector(0, 0, 1), 15.25), math.radians(159.047323), math.radians(174.857961)),  # 1
    Part.ArcOfCircle(Part.Circle(Vector(-14.801936, 17.137232, 0), Vector(0, 0, 1), 0.6), math.radians(-20.952677), math.radians(145)),  # 2
    Part.LineSegment(Vector(-15.293427, 17.481378, 0), Vector(-18.546082, 12.836107, 0)),  # 3
    Part.LineSegment(Vector(15.188628, 12.836107, 0), Vector(18.546082, 12.836107, 0)),  # 4
    Part.LineSegment(Vector(18.546082, 12.836107, 0), Vector(15.293427, 17.481378, 0)),  # 5
    Part.ArcOfCircle(Part.Circle(Vector(14.801936, 17.137232, 0), Vector(0, 0, 1), 0.6), math.radians(35), math.radians(200.952677)),  # 6
    Part.ArcOfCircle(Part.Circle(Vector(0, 11.469324, 0), Vector(0, 0, 1), 15.25), math.radians(5.142039), math.radians(20.952677)),  # 7
], False)
sketch12.addConstraint([
    Sketcher.Constraint("Coincident", 0, 2, 1, 2),
    Sketcher.Constraint("Tangent", 1, 1, 2, 1),
    Sketcher.Constraint("Tangent", 2, 2, 3, 1),
    Sketcher.Constraint("Coincident", 3, 2, 0, 1),
    Sketcher.Constraint("Coincident", 4, 2, 5, 1),
    Sketcher.Constraint("Tangent", 5, 2, 6, 1),
    Sketcher.Constraint("Tangent", 6, 2, 7, 2),
    Sketcher.Constraint("Coincident", 7, 1, 4, 1),
    Sketcher.Constraint("Horizontal", 0),
    Sketcher.Constraint("Horizontal", 4),
    Sketcher.Constraint("Coincident", 7, 3, 1, 3),
    Sketcher.Constraint("Equal", 2, 6),
    Sketcher.Constraint("Equal", 1, 7),
    Sketcher.Constraint("Symmetric", 2, 3, 6, 3, -2),
    Sketcher.Constraint("Symmetric", 3, 2, 4, 2, -2),
    Sketcher.Constraint("Radius", 2, Q("0.6 mm")),
    Sketcher.Constraint("Angle", 3, Q("-125 deg")),
    Sketcher.Constraint("Radius", 1, Q("15.25 mm")),
    Sketcher.Constraint("DistanceX", 2, 2, 0, 2, Q("0.1048 mm")),
    Sketcher.Constraint("Distance", 3, Q("5.67083 mm")),
    Sketcher.Constraint("DistanceY", -1, 1, 2, 2, Q("17.481378 mm")),
])
pocket7 = body.newObject("PartDesign::Pocket", "Pocket006")
pocket7.Profile = sketch12
pocket7.Type = "ThroughAll"
doc.recompute()

fillet2 = body.newObject("PartDesign::Fillet", "Fillet001")
fillet2.Base = (pocket7, edges_at(pocket7, [
    (-15.189, 12.836, 0),
    (-18.546, 12.836, 0),
    (15.189, 12.836, 0),
    (18.546, 12.836, 0),
]))
fillet2.Radius = 0.6

doc.recompute()
